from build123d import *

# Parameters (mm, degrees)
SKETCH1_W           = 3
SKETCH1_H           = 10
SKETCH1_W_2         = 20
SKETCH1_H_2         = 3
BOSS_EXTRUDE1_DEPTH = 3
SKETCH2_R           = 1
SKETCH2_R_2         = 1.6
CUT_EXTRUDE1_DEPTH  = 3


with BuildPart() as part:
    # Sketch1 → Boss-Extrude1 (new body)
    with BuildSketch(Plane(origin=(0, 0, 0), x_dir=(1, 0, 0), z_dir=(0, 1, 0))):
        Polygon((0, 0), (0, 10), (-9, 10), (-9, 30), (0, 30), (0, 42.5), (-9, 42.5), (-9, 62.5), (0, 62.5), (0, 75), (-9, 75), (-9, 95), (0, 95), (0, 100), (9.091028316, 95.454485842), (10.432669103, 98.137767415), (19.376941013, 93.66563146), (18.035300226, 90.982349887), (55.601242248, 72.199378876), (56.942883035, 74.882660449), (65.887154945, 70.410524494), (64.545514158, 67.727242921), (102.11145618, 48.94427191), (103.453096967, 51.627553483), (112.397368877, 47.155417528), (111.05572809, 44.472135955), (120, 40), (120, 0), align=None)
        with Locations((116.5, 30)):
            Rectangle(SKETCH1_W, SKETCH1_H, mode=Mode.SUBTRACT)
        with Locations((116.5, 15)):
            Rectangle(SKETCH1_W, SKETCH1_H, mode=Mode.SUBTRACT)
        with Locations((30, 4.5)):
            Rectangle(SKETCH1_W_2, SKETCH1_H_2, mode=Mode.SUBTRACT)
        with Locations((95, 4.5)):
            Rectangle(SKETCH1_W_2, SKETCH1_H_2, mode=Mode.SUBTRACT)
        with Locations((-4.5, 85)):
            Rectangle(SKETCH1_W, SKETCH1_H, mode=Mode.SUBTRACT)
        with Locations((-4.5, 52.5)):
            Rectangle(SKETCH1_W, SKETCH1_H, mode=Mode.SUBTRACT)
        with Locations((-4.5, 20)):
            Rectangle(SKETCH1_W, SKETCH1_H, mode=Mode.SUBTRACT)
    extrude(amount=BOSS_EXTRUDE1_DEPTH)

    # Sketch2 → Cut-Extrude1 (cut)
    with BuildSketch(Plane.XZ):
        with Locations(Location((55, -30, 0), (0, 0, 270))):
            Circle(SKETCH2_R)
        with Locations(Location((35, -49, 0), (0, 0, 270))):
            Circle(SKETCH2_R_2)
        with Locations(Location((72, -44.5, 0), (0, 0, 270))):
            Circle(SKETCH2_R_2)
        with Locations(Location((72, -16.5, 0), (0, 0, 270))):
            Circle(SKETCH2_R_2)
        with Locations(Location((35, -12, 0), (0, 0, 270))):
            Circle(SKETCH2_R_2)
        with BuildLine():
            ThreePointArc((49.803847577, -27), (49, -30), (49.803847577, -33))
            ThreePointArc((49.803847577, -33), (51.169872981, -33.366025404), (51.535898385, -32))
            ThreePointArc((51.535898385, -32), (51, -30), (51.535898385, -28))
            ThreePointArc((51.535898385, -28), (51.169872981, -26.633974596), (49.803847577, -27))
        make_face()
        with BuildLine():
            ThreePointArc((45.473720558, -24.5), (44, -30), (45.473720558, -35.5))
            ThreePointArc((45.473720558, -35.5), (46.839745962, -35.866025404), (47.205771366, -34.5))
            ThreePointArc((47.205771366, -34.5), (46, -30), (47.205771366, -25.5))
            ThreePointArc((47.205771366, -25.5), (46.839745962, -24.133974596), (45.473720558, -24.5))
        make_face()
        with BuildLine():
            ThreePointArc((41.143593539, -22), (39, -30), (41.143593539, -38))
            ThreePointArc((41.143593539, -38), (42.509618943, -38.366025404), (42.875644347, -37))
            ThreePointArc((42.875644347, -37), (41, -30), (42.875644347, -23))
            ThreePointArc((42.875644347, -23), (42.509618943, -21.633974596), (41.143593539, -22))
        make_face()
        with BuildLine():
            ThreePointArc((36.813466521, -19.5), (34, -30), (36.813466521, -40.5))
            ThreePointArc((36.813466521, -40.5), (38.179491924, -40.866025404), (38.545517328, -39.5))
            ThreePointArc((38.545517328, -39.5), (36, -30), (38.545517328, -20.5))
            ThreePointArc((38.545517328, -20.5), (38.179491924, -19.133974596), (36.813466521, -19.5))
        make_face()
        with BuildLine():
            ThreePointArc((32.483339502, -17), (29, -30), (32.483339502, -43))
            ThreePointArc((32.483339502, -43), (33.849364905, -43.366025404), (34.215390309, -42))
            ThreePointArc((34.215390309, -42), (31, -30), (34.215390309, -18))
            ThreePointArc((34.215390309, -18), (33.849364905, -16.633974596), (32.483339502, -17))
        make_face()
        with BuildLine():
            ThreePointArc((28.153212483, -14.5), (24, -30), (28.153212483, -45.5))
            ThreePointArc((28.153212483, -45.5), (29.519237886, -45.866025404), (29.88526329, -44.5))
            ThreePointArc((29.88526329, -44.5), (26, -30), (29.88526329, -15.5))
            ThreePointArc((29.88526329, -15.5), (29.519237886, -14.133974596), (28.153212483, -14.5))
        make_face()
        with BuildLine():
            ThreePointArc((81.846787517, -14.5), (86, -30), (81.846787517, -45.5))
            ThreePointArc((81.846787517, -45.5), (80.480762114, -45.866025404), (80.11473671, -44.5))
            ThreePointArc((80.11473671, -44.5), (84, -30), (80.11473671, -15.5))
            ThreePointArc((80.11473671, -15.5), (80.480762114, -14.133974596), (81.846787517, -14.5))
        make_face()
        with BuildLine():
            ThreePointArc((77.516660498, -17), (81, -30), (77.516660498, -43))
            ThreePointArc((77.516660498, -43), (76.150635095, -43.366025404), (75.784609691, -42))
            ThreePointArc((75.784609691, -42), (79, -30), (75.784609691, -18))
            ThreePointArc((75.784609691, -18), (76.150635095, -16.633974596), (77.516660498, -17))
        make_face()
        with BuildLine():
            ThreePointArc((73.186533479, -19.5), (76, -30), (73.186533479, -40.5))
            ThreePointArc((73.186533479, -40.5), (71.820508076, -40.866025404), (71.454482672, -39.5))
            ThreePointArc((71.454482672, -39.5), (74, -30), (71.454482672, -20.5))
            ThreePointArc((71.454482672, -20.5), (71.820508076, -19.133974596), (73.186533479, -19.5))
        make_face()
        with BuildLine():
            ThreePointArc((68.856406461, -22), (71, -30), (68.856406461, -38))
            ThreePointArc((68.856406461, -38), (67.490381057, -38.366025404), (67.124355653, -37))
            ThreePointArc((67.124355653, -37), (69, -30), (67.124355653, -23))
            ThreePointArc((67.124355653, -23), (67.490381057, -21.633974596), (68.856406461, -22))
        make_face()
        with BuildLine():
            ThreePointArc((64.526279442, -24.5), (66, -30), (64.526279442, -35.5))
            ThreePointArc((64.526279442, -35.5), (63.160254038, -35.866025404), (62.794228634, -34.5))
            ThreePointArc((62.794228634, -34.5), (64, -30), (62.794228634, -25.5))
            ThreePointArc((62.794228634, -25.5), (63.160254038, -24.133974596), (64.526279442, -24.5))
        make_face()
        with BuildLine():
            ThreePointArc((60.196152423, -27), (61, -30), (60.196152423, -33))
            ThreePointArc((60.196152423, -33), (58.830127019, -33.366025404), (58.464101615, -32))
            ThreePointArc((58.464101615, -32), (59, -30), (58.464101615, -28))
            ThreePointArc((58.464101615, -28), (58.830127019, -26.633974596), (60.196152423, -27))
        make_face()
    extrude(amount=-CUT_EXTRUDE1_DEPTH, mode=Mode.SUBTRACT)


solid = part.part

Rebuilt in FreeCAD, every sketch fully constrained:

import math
import FreeCAD as App
import Part
import Sketcher

V = App.Vector
Q = App.Units.Quantity


def add_polygon(sketch, points):
    """Adds a closed chain of lines whose ends are joined by coincident constraints."""
    first, n = sketch.GeometryCount, len(points)
    for a, b in zip(points, points[1:] + points[:1]):
        sketch.addGeometry(Part.LineSegment(App.Vector(*a, 0), App.Vector(*b, 0)), False)
    for i in range(n):
        sketch.addConstraint(Sketcher.Constraint("Coincident", first + i, 2, first + (i + 1) % n, 1))

doc = App.newDocument("Part")
body = doc.addObject("PartDesign::Body", "Body")

sketch1 = doc.addObject("Sketcher::SketchObject", "Sketch")
body.addObject(sketch1)
sketch1.AttachmentSupport = (doc.XZ_Plane, [""])
sketch1.MapMode = "FlatFace"
add_polygon(sketch1, [(0, -10), (0, 0), (120, 0), (120, -40), (111.1, -44.5), (112.4, -47.2), (103.5, -51.6), (102.1, -48.9), (64.5, -67.7), (65.9, -70.4), (56.9, -74.9), (55.6, -72.2), (18, -91), (19.4, -93.7), (10.4, -98.1), (9.1, -95.5), (0, -100), (0, -95), (-9, -95), (-9, -75), (0, -75), (0, -62.5), (-9, -62.5), (-9, -42.5), (0, -42.5), (0, -30), (-9, -30), (-9, -10)])
add_polygon(sketch1, [(85, -3), (85, -6), (105, -6), (105, -3)])
add_polygon(sketch1, [(115, -10), (115, -20), (118, -20), (118, -10)])
add_polygon(sketch1, [(115, -25), (115, -35), (118, -35), (118, -25)])
add_polygon(sketch1, [(20, -3), (20, -6), (40, -6), (40, -3)])
add_polygon(sketch1, [(-6, -15), (-6, -25), (-3, -25), (-3, -15)])
add_polygon(sketch1, [(-6, -47.5), (-6, -57.5), (-3, -57.5), (-3, -47.5)])
add_polygon(sketch1, [(-6, -80), (-6, -90), (-3, -90), (-3, -80)])
sketch1.addConstraint(Sketcher.Constraint("Vertical", 0))
sketch1.addConstraint(Sketcher.Constraint("Horizontal", 1))
sketch1.addConstraint(Sketcher.Constraint("Vertical", 2))
sketch1.addConstraint(Sketcher.Constraint("Vertical", 16))
sketch1.addConstraint(Sketcher.Constraint("Horizontal", 17))
sketch1.addConstraint(Sketcher.Constraint("Vertical", 18))
sketch1.addConstraint(Sketcher.Constraint("Horizontal", 19))
sketch1.addConstraint(Sketcher.Constraint("Vertical", 20))
sketch1.addConstraint(Sketcher.Constraint("Horizontal", 21))
sketch1.addConstraint(Sketcher.Constraint("Vertical", 22))
sketch1.addConstraint(Sketcher.Constraint("Horizontal", 23))
sketch1.addConstraint(Sketcher.Constraint("Vertical", 24))
sketch1.addConstraint(Sketcher.Constraint("Horizontal", 25))
sketch1.addConstraint(Sketcher.Constraint("Vertical", 26))
sketch1.addConstraint(Sketcher.Constraint("Horizontal", 27))
sketch1.addConstraint(Sketcher.Constraint("Vertical", 28))
sketch1.addConstraint(Sketcher.Constraint("Horizontal", 29))
sketch1.addConstraint(Sketcher.Constraint("Vertical", 30))
sketch1.addConstraint(Sketcher.Constraint("Horizontal", 31))
sketch1.addConstraint(Sketcher.Constraint("Vertical", 32))
sketch1.addConstraint(Sketcher.Constraint("Horizontal", 33))
sketch1.addConstraint(Sketcher.Constraint("Vertical", 34))
sketch1.addConstraint(Sketcher.Constraint("Horizontal", 35))
sketch1.addConstraint(Sketcher.Constraint("Vertical", 36))
sketch1.addConstraint(Sketcher.Constraint("Horizontal", 37))
sketch1.addConstraint(Sketcher.Constraint("Vertical", 38))
sketch1.addConstraint(Sketcher.Constraint("Horizontal", 39))
sketch1.addConstraint(Sketcher.Constraint("Vertical", 40))
sketch1.addConstraint(Sketcher.Constraint("Horizontal", 41))
sketch1.addConstraint(Sketcher.Constraint("Vertical", 42))
sketch1.addConstraint(Sketcher.Constraint("Horizontal", 43))
sketch1.addConstraint(Sketcher.Constraint("Vertical", 44))
sketch1.addConstraint(Sketcher.Constraint("Horizontal", 45))
sketch1.addConstraint(Sketcher.Constraint("Vertical", 46))
sketch1.addConstraint(Sketcher.Constraint("Horizontal", 47))
sketch1.addConstraint(Sketcher.Constraint("Vertical", 48))
sketch1.addConstraint(Sketcher.Constraint("Horizontal", 49))
sketch1.addConstraint(Sketcher.Constraint("Vertical", 50))
sketch1.addConstraint(Sketcher.Constraint("Horizontal", 51))
sketch1.addConstraint(Sketcher.Constraint("Vertical", 52))
sketch1.addConstraint(Sketcher.Constraint("Horizontal", 53))
sketch1.addConstraint(Sketcher.Constraint("Vertical", 54))
sketch1.addConstraint(Sketcher.Constraint("Horizontal", 55))
sketch1.addConstraint(Sketcher.Constraint("Coincident", 0, 2, -1, 1))
sketch1.addConstraint(Sketcher.Constraint("PointOnObject", 15, 2, -2))
sketch1.addConstraint(Sketcher.Constraint("PointOnObject", 19, 2, -2))
sketch1.addConstraint(Sketcher.Constraint("PointOnObject", 23, 2, -2))
sketch1.addConstraint(Sketcher.Constraint("Perpendicular", 3, 4))
sketch1.addConstraint(Sketcher.Constraint("Perpendicular", 4, 5))
sketch1.addConstraint(Sketcher.Constraint("Perpendicular", 5, 6))
sketch1.addConstraint(Sketcher.Constraint("Perpendicular", 6, 7))
sketch1.addConstraint(Sketcher.Constraint("Perpendicular", 7, 8))
sketch1.addConstraint(Sketcher.Constraint("Perpendicular", 8, 9))
sketch1.addConstraint(Sketcher.Constraint("Perpendicular", 9, 10))
sketch1.addConstraint(Sketcher.Constraint("Perpendicular", 10, 11))
sketch1.addConstraint(Sketcher.Constraint("Perpendicular", 11, 12))
sketch1.addConstraint(Sketcher.Constraint("Perpendicular", 12, 13))
sketch1.addConstraint(Sketcher.Constraint("Perpendicular", 13, 14))
sketch1.addConstraint(Sketcher.Constraint("Perpendicular", 14, 15))
sketch1.addConstraint(Sketcher.Constraint("Horizontal", 27, 2, 34, 2))
sketch1.addConstraint(Sketcher.Constraint("Horizontal", 29, 2, 40, 2))
sketch1.addConstraint(Sketcher.Constraint("Horizontal", 31, 2, 42, 2))
sketch1.addConstraint(Sketcher.Constraint("Horizontal", 39, 2, 44, 2))
sketch1.addConstraint(Sketcher.Constraint("Vertical", 18, 2, 21, 2))
sketch1.addConstraint(Sketcher.Constraint("Vertical", 22, 2, 25, 2))
sketch1.addConstraint(Sketcher.Constraint("Vertical", 35, 2, 36, 2))
sketch1.addConstraint(Sketcher.Constraint("Vertical", 34, 2, 37, 2))
sketch1.addConstraint(Sketcher.Constraint("Vertical", 47, 2, 48, 2))
sketch1.addConstraint(Sketcher.Constraint("Vertical", 46, 2, 49, 2))
sketch1.addConstraint(Sketcher.Constraint("Vertical", 51, 2, 52, 2))
sketch1.addConstraint(Sketcher.Constraint("Vertical", 50, 2, 53, 2))
sketch1.addConstraint(Sketcher.Constraint("Equal", 31, 41))
sketch1.addConstraint(Sketcher.Constraint("Equal", 39, 45))
sketch1.addConstraint(Sketcher.Constraint("Equal", 43, 18))
sketch1.addConstraint(Sketcher.Constraint("Equal", 18, 22))
sketch1.addConstraint(Sketcher.Constraint("Equal", 20, 24))
sketch1.addConstraint(Sketcher.Constraint("Equal", 22, 26))
sketch1.addConstraint(Sketcher.Constraint("Equal", 55, 28))
sketch1.addConstraint(Sketcher.Constraint("Equal", 0, 32))
sketch1.addConstraint(Sketcher.Constraint("Equal", 34, 36))
sketch1.addConstraint(Sketcher.Constraint("Equal", 38, 44))
sketch1.addConstraint(Sketcher.Constraint("Equal", 46, 48))
sketch1.addConstraint(Sketcher.Constraint("Equal", 50, 52))
sketch1.addConstraint(Sketcher.Constraint("Equal", 3, 5))
sketch1.addConstraint(Sketcher.Constraint("Equal", 4, 6))
sketch1.addConstraint(Sketcher.Constraint("Equal", 6, 8))
sketch1.addConstraint(Sketcher.Constraint("Equal", 5, 9))
sketch1.addConstraint(Sketcher.Constraint("Equal", 8, 10))
sketch1.addConstraint(Sketcher.Constraint("Equal", 7, 11))
sketch1.addConstraint(Sketcher.Constraint("Equal", 10, 12))
sketch1.addConstraint(Sketcher.Constraint("Equal", 9, 13))
sketch1.addConstraint(Sketcher.Constraint("Equal", 12, 14))
sketch1.addConstraint(Sketcher.Constraint("DistanceX", 1, 1, 1, 2, Q("120 mm")))
sketch1.addConstraint(Sketcher.Constraint("DistanceX", 17, 2, 17, 1, Q("9 mm")))
sketch1.addConstraint(Sketcher.Constraint("DistanceX", 29, 1, 29, 2, Q("20 mm")))
sketch1.addConstraint(Sketcher.Constraint("DistanceX", 33, 1, 33, 2, Q("3 mm")))
sketch1.addConstraint(Sketcher.Constraint("DistanceY", 0, 1, 0, 2, Q("10 mm")))
sketch1.addConstraint(Sketcher.Constraint("DistanceY", 2, 2, 2, 1, Q("40 mm")))
sketch1.addConstraint(Sketcher.Constraint("DistanceY", 16, 1, 16, 2, Q("5 mm")))
sketch1.addConstraint(Sketcher.Constraint("Distance", 3, Q("10 mm")))
sketch1.addConstraint(Sketcher.Constraint("Distance", 4, Q("3 mm")))
sketch1.addConstraint(Sketcher.Constraint("Distance", 7, Q("42 mm")))
sketch1.addConstraint(Sketcher.Constraint("DistanceY", 20, 1, 20, 2, Q("12.5 mm")))
sketch1.addConstraint(Sketcher.Constraint("DistanceX", -1, 1, 28, 2, Q("85 mm")))
sketch1.addConstraint(Sketcher.Constraint("DistanceY", 28, 2, -1, 1, Q("6 mm")))
sketch1.addConstraint(Sketcher.Constraint("DistanceX", -1, 1, 32, 2, Q("115 mm")))
sketch1.addConstraint(Sketcher.Constraint("DistanceY", 36, 2, -1, 1, Q("35 mm")))
sketch1.addConstraint(Sketcher.Constraint("DistanceX", -1, 1, 40, 2, Q("20 mm")))
sketch1.addConstraint(Sketcher.Constraint("DistanceX", 44, 2, -1, 1, Q("6 mm")))
sketch1.addConstraint(Sketcher.Constraint("DistanceY", 52, 2, -1, 1, Q("90 mm")))
sketch1.addConstraint(Sketcher.Constraint("DistanceY", 21, 2, 48, 2, Q("5 mm")))
pad1 = doc.addObject("PartDesign::Pad", "Pad")
body.addObject(pad1)
pad1.Profile = sketch1
pad1.Length = 3
pad1.Reversed = True

sketch2 = doc.addObject("Sketcher::SketchObject", "Sketch001")
body.addObject(sketch2)
sketch2.AttachmentSupport = (doc.XZ_Plane, [""])
sketch2.MapMode = "FlatFace"
sketch2.addGeometry(Part.Circle(V(55, -30, 0), V(0, 0, 1), 1), False)
sketch2.addGeometry(Part.Circle(V(35, -49, 0), V(0, 0, 1), 1.6), False)
sketch2.addGeometry(Part.Circle(V(72, -44.5, 0), V(0, 0, 1), 1.6), False)
sketch2.addGeometry(Part.Circle(V(72, -16.5, 0), V(0, 0, 1), 1.6), False)
sketch2.addGeometry(Part.Circle(V(35, -12, 0), V(0, 0, 1), 1.6), False)
sketch2.addGeometry(Part.ArcOfCircle(Part.Circle(V(55, -30, 0), V(0, 0, 1), 6), math.radians(150), math.radians(210)), False)
sketch2.addGeometry(Part.ArcOfCircle(Part.Circle(V(50.7, -32.5, 0), V(0, 0, 1), 1), math.radians(-150), math.radians(30)), False)
sketch2.addGeometry(Part.ArcOfCircle(Part.Circle(V(55, -30, 0), V(0, 0, 1), 4), math.radians(150), math.radians(210)), False)
sketch2.addGeometry(Part.ArcOfCircle(Part.Circle(V(50.7, -27.5, 0), V(0, 0, 1), 1), math.radians(-30), math.radians(150)), False)
sketch2.addGeometry(Part.ArcOfCircle(Part.Circle(V(55, -30, 0), V(0, 0, 1), 11), math.radians(150), math.radians(210)), False)
sketch2.addGeometry(Part.ArcOfCircle(Part.Circle(V(46.3, -35, 0), V(0, 0, 1), 1), math.radians(-150), math.radians(30)), False)
sketch2.addGeometry(Part.ArcOfCircle(Part.Circle(V(55, -30, 0), V(0, 0, 1), 9), math.radians(150), math.radians(210)), False)
sketch2.addGeometry(Part.ArcOfCircle(Part.Circle(V(46.3, -25, 0), V(0, 0, 1), 1), math.radians(-30), math.radians(150)), False)
sketch2.addGeometry(Part.ArcOfCircle(Part.Circle(V(55, -30, 0), V(0, 0, 1), 16), math.radians(150), math.radians(210)), False)
sketch2.addGeometry(Part.ArcOfCircle(Part.Circle(V(42, -37.5, 0), V(0, 0, 1), 1), math.radians(-150), math.radians(30)), False)
sketch2.addGeometry(Part.ArcOfCircle(Part.Circle(V(55, -30, 0), V(0, 0, 1), 14), math.radians(150), math.radians(210)), False)
sketch2.addGeometry(Part.ArcOfCircle(Part.Circle(V(42, -22.5, 0), V(0, 0, 1), 1), math.radians(-30), math.radians(150)), False)
sketch2.addGeometry(Part.ArcOfCircle(Part.Circle(V(55, -30, 0), V(0, 0, 1), 21), math.radians(150), math.radians(210)), False)
sketch2.addGeometry(Part.ArcOfCircle(Part.Circle(V(37.7, -40, 0), V(0, 0, 1), 1), math.radians(-150), math.radians(30)), False)
sketch2.addGeometry(Part.ArcOfCircle(Part.Circle(V(55, -30, 0), V(0, 0, 1), 19), math.radians(150), math.radians(210)), False)
sketch2.addGeometry(Part.ArcOfCircle(Part.Circle(V(37.7, -20, 0), V(0, 0, 1), 1), math.radians(-30), math.radians(150)), False)
sketch2.addGeometry(Part.ArcOfCircle(Part.Circle(V(55, -30, 0), V(0, 0, 1), 26), math.radians(150), math.radians(210)), False)
sketch2.addGeometry(Part.ArcOfCircle(Part.Circle(V(33.3, -42.5, 0), V(0, 0, 1), 1), math.radians(-150), math.radians(30)), False)
sketch2.addGeometry(Part.ArcOfCircle(Part.Circle(V(55, -30, 0), V(0, 0, 1), 24), math.radians(150), math.radians(210)), False)
sketch2.addGeometry(Part.ArcOfCircle(Part.Circle(V(33.3, -17.5, 0), V(0, 0, 1), 1), math.radians(-30), math.radians(150)), False)
sketch2.addGeometry(Part.ArcOfCircle(Part.Circle(V(55, -30, 0), V(0, 0, 1), 31), math.radians(150), math.radians(210)), False)
sketch2.addGeometry(Part.ArcOfCircle(Part.Circle(V(29, -45, 0), V(0, 0, 1), 1), math.radians(-150), math.radians(30)), False)
sketch2.addGeometry(Part.ArcOfCircle(Part.Circle(V(55, -30, 0), V(0, 0, 1), 29), math.radians(150), math.radians(210)), False)
sketch2.addGeometry(Part.ArcOfCircle(Part.Circle(V(29, -15, 0), V(0, 0, 1), 1), math.radians(-30), math.radians(150)), False)
sketch2.addGeometry(Part.ArcOfCircle(Part.Circle(V(55, -30, 0), V(0, 0, 1), 31), math.radians(-30), math.radians(30)), False)
sketch2.addGeometry(Part.ArcOfCircle(Part.Circle(V(81, -15, 0), V(0, 0, 1), 1), math.radians(30), math.radians(210)), False)
sketch2.addGeometry(Part.ArcOfCircle(Part.Circle(V(55, -30, 0), V(0, 0, 1), 29), math.radians(-30), math.radians(30)), False)
sketch2.addGeometry(Part.ArcOfCircle(Part.Circle(V(81, -45, 0), V(0, 0, 1), 1), math.radians(150), math.radians(330)), False)
sketch2.addGeometry(Part.ArcOfCircle(Part.Circle(V(55, -30, 0), V(0, 0, 1), 26), math.radians(-30), math.radians(30)), False)
sketch2.addGeometry(Part.ArcOfCircle(Part.Circle(V(76.7, -17.5, 0), V(0, 0, 1), 1), math.radians(30), math.radians(210)), False)
sketch2.addGeometry(Part.ArcOfCircle(Part.Circle(V(55, -30, 0), V(0, 0, 1), 24), math.radians(-30), math.radians(30)), False)
sketch2.addGeometry(Part.ArcOfCircle(Part.Circle(V(76.7, -42.5, 0), V(0, 0, 1), 1), math.radians(150), math.radians(330)), False)
sketch2.addGeometry(Part.ArcOfCircle(Part.Circle(V(55, -30, 0), V(0, 0, 1), 21), math.radians(-30), math.radians(30)), False)
sketch2.addGeometry(Part.ArcOfCircle(Part.Circle(V(72.3, -20, 0), V(0, 0, 1), 1), math.radians(30), math.radians(210)), False)
sketch2.addGeometry(Part.ArcOfCircle(Part.Circle(V(55, -30, 0), V(0, 0, 1), 19), math.radians(-30), math.radians(30)), False)
sketch2.addGeometry(Part.ArcOfCircle(Part.Circle(V(72.3, -40, 0), V(0, 0, 1), 1), math.radians(150), math.radians(330)), False)
sketch2.addGeometry(Part.ArcOfCircle(Part.Circle(V(55, -30, 0), V(0, 0, 1), 16), math.radians(-30), math.radians(30)), False)
sketch2.addGeometry(Part.ArcOfCircle(Part.Circle(V(68, -22.5, 0), V(0, 0, 1), 1), math.radians(30), math.radians(210)), False)
sketch2.addGeometry(Part.ArcOfCircle(Part.Circle(V(55, -30, 0), V(0, 0, 1), 14), math.radians(-30), math.radians(30)), False)
sketch2.addGeometry(Part.ArcOfCircle(Part.Circle(V(68, -37.5, 0), V(0, 0, 1), 1), math.radians(150), math.radians(330)), False)
sketch2.addGeometry(Part.ArcOfCircle(Part.Circle(V(55, -30, 0), V(0, 0, 1), 11), math.radians(-30), math.radians(30)), False)
sketch2.addGeometry(Part.ArcOfCircle(Part.Circle(V(63.7, -25, 0), V(0, 0, 1), 1), math.radians(30), math.radians(210)), False)
sketch2.addGeometry(Part.ArcOfCircle(Part.Circle(V(55, -30, 0), V(0, 0, 1), 9), math.radians(-30), math.radians(30)), False)
sketch2.addGeometry(Part.ArcOfCircle(Part.Circle(V(63.7, -35, 0), V(0, 0, 1), 1), math.radians(150), math.radians(330)), False)
sketch2.addGeometry(Part.ArcOfCircle(Part.Circle(V(55, -30, 0), V(0, 0, 1), 6), math.radians(-30), math.radians(30)), False)
sketch2.addGeometry(Part.ArcOfCircle(Part.Circle(V(59.3, -27.5, 0), V(0, 0, 1), 1), math.radians(30), math.radians(210)), False)
sketch2.addGeometry(Part.ArcOfCircle(Part.Circle(V(55, -30, 0), V(0, 0, 1), 4), math.radians(-30), math.radians(30)), False)
sketch2.addGeometry(Part.ArcOfCircle(Part.Circle(V(59.3, -32.5, 0), V(0, 0, 1), 1), math.radians(150), math.radians(330)), False)
sketch2.addConstraint(Sketcher.Constraint("Tangent", 5, 2, 6, 1))
sketch2.addConstraint(Sketcher.Constraint("Tangent", 6, 2, 7, 2))
sketch2.addConstraint(Sketcher.Constraint("Tangent", 7, 1, 8, 1))
sketch2.addConstraint(Sketcher.Constraint("Tangent", 8, 2, 5, 1))
sketch2.addConstraint(Sketcher.Constraint("Tangent", 9, 2, 10, 1))
sketch2.addConstraint(Sketcher.Constraint("Tangent", 10, 2, 11, 2))
sketch2.addConstraint(Sketcher.Constraint("Tangent", 11, 1, 12, 1))
sketch2.addConstraint(Sketcher.Constraint("Tangent", 12, 2, 9, 1))
sketch2.addConstraint(Sketcher.Constraint("Tangent", 13, 2, 14, 1))
sketch2.addConstraint(Sketcher.Constraint("Tangent", 14, 2, 15, 2))
sketch2.addConstraint(Sketcher.Constraint("Tangent", 15, 1, 16, 1))
sketch2.addConstraint(Sketcher.Constraint("Tangent", 16, 2, 13, 1))
sketch2.addConstraint(Sketcher.Constraint("Tangent", 17, 2, 18, 1))
sketch2.addConstraint(Sketcher.Constraint("Tangent", 18, 2, 19, 2))
sketch2.addConstraint(Sketcher.Constraint("Tangent", 19, 1, 20, 1))
sketch2.addConstraint(Sketcher.Constraint("Tangent", 20, 2, 17, 1))
sketch2.addConstraint(Sketcher.Constraint("Tangent", 21, 2, 22, 1))
sketch2.addConstraint(Sketcher.Constraint("Tangent", 22, 2, 23, 2))
sketch2.addConstraint(Sketcher.Constraint("Tangent", 23, 1, 24, 1))
sketch2.addConstraint(Sketcher.Constraint("Tangent", 24, 2, 21, 1))
sketch2.addConstraint(Sketcher.Constraint("Tangent", 25, 2, 26, 1))
sketch2.addConstraint(Sketcher.Constraint("Tangent", 26, 2, 27, 2))
sketch2.addConstraint(Sketcher.Constraint("Tangent", 27, 1, 28, 1))
sketch2.addConstraint(Sketcher.Constraint("Tangent", 28, 2, 25, 1))
sketch2.addConstraint(Sketcher.Constraint("Tangent", 29, 2, 30, 1))
sketch2.addConstraint(Sketcher.Constraint("Tangent", 30, 2, 31, 2))
sketch2.addConstraint(Sketcher.Constraint("Tangent", 31, 1, 32, 1))
sketch2.addConstraint(Sketcher.Constraint("Tangent", 32, 2, 29, 1))
sketch2.addConstraint(Sketcher.Constraint("Tangent", 33, 2, 34, 1))
sketch2.addConstraint(Sketcher.Constraint("Tangent", 34, 2, 35, 2))
sketch2.addConstraint(Sketcher.Constraint("Tangent", 35, 1, 36, 1))
sketch2.addConstraint(Sketcher.Constraint("Tangent", 36, 2, 33, 1))
sketch2.addConstraint(Sketcher.Constraint("Tangent", 37, 2, 38, 1))
sketch2.addConstraint(Sketcher.Constraint("Tangent", 38, 2, 39, 2))
sketch2.addConstraint(Sketcher.Constraint("Tangent", 39, 1, 40, 1))
sketch2.addConstraint(Sketcher.Constraint("Tangent", 40, 2, 37, 1))
sketch2.addConstraint(Sketcher.Constraint("Tangent", 41, 2, 42, 1))
sketch2.addConstraint(Sketcher.Constraint("Tangent", 42, 2, 43, 2))
sketch2.addConstraint(Sketcher.Constraint("Tangent", 43, 1, 44, 1))
sketch2.addConstraint(Sketcher.Constraint("Tangent", 44, 2, 41, 1))
sketch2.addConstraint(Sketcher.Constraint("Tangent", 45, 2, 46, 1))
sketch2.addConstraint(Sketcher.Constraint("Tangent", 46, 2, 47, 2))
sketch2.addConstraint(Sketcher.Constraint("Tangent", 47, 1, 48, 1))
sketch2.addConstraint(Sketcher.Constraint("Tangent", 48, 2, 45, 1))
sketch2.addConstraint(Sketcher.Constraint("Tangent", 49, 2, 50, 1))
sketch2.addConstraint(Sketcher.Constraint("Tangent", 50, 2, 51, 2))
sketch2.addConstraint(Sketcher.Constraint("Tangent", 51, 1, 52, 1))
sketch2.addConstraint(Sketcher.Constraint("Tangent", 52, 2, 49, 1))
sketch2.addConstraint(Sketcher.Constraint("Coincident", 5, 3, 0, 3))
sketch2.addConstraint(Sketcher.Constraint("Coincident", 7, 3, 0, 3))
sketch2.addConstraint(Sketcher.Constraint("Coincident", 9, 3, 0, 3))
sketch2.addConstraint(Sketcher.Constraint("Coincident", 11, 3, 0, 3))
sketch2.addConstraint(Sketcher.Constraint("Coincident", 13, 3, 0, 3))
sketch2.addConstraint(Sketcher.Constraint("Coincident", 15, 3, 0, 3))
sketch2.addConstraint(Sketcher.Constraint("Coincident", 17, 3, 0, 3))
sketch2.addConstraint(Sketcher.Constraint("Coincident", 19, 3, 0, 3))
sketch2.addConstraint(Sketcher.Constraint("Coincident", 21, 3, 0, 3))
sketch2.addConstraint(Sketcher.Constraint("Coincident", 23, 3, 0, 3))
sketch2.addConstraint(Sketcher.Constraint("Coincident", 25, 3, 0, 3))
sketch2.addConstraint(Sketcher.Constraint("Coincident", 27, 3, 0, 3))
sketch2.addConstraint(Sketcher.Constraint("Coincident", 29, 3, 0, 3))
sketch2.addConstraint(Sketcher.Constraint("Coincident", 31, 3, 0, 3))
sketch2.addConstraint(Sketcher.Constraint("Coincident", 33, 3, 0, 3))
sketch2.addConstraint(Sketcher.Constraint("Coincident", 35, 3, 0, 3))
sketch2.addConstraint(Sketcher.Constraint("Coincident", 37, 3, 0, 3))
sketch2.addConstraint(Sketcher.Constraint("Coincident", 39, 3, 0, 3))
sketch2.addConstraint(Sketcher.Constraint("Coincident", 41, 3, 0, 3))
sketch2.addConstraint(Sketcher.Constraint("Coincident", 43, 3, 0, 3))
sketch2.addConstraint(Sketcher.Constraint("Coincident", 45, 3, 0, 3))
sketch2.addConstraint(Sketcher.Constraint("Coincident", 47, 3, 0, 3))
sketch2.addConstraint(Sketcher.Constraint("Coincident", 49, 3, 0, 3))
sketch2.addConstraint(Sketcher.Constraint("Coincident", 51, 3, 0, 3))
sketch2.addConstraint(Sketcher.Constraint("Equal", 1, 2))
sketch2.addConstraint(Sketcher.Constraint("Equal", 2, 3))
sketch2.addConstraint(Sketcher.Constraint("Equal", 3, 4))
sketch2.addConstraint(Sketcher.Constraint("Equal", 0, 6))
sketch2.addConstraint(Sketcher.Constraint("Equal", 8, 10))
sketch2.addConstraint(Sketcher.Constraint("Equal", 12, 14))
sketch2.addConstraint(Sketcher.Constraint("Equal", 16, 18))
sketch2.addConstraint(Sketcher.Constraint("Equal", 20, 22))
sketch2.addConstraint(Sketcher.Constraint("Equal", 24, 26))
sketch2.addConstraint(Sketcher.Constraint("Equal", 25, 29))
sketch2.addConstraint(Sketcher.Constraint("Equal", 28, 30))
sketch2.addConstraint(Sketcher.Constraint("Equal", 21, 33))
sketch2.addConstraint(Sketcher.Constraint("Equal", 32, 34))
sketch2.addConstraint(Sketcher.Constraint("Equal", 17, 37))
sketch2.addConstraint(Sketcher.Constraint("Equal", 36, 38))
sketch2.addConstraint(Sketcher.Constraint("Equal", 13, 41))
sketch2.addConstraint(Sketcher.Constraint("Equal", 40, 42))
sketch2.addConstraint(Sketcher.Constraint("Equal", 9, 45))
sketch2.addConstraint(Sketcher.Constraint("Equal", 44, 46))
sketch2.addConstraint(Sketcher.Constraint("Equal", 5, 49))
sketch2.addConstraint(Sketcher.Constraint("Equal", 48, 50))
sketch2.addConstraint(Sketcher.Constraint("Horizontal", 28, 3, 30, 3))
sketch2.addConstraint(Sketcher.Constraint("Horizontal", 26, 3, 32, 3))
sketch2.addConstraint(Sketcher.Constraint("Horizontal", 24, 3, 34, 3))
sketch2.addConstraint(Sketcher.Constraint("Horizontal", 22, 3, 36, 3))
sketch2.addConstraint(Sketcher.Constraint("Horizontal", 20, 3, 38, 3))
sketch2.addConstraint(Sketcher.Constraint("Horizontal", 18, 3, 40, 3))
sketch2.addConstraint(Sketcher.Constraint("Horizontal", 16, 3, 42, 3))
sketch2.addConstraint(Sketcher.Constraint("Horizontal", 14, 3, 44, 3))
sketch2.addConstraint(Sketcher.Constraint("Horizontal", 12, 3, 46, 3))
sketch2.addConstraint(Sketcher.Constraint("Horizontal", 10, 3, 48, 3))
sketch2.addConstraint(Sketcher.Constraint("Horizontal", 8, 3, 50, 3))
sketch2.addConstraint(Sketcher.Constraint("Horizontal", 6, 3, 52, 3))
sketch2.addConstraint(Sketcher.Constraint("Horizontal", 2, 3, 26, 2))
sketch2.addConstraint(Sketcher.Constraint("Vertical", 2, 3, 3, 3))
sketch2.addConstraint(Sketcher.Constraint("Vertical", 1, 3, 4, 3))
sketch2.addConstraint(Sketcher.Constraint("Vertical", 6, 3, 8, 3))
sketch2.addConstraint(Sketcher.Constraint("Vertical", 10, 3, 12, 3))
sketch2.addConstraint(Sketcher.Constraint("Vertical", 14, 3, 16, 3))
sketch2.addConstraint(Sketcher.Constraint("Vertical", 18, 3, 20, 3))
sketch2.addConstraint(Sketcher.Constraint("Vertical", 22, 3, 24, 3))
sketch2.addConstraint(Sketcher.Constraint("Vertical", 26, 3, 28, 3))
sketch2.addConstraint(Sketcher.Constraint("Diameter", 0, Q("2 mm")))
sketch2.addConstraint(Sketcher.Constraint("Radius", 5, Q("6 mm")))
sketch2.addConstraint(Sketcher.Constraint("Radius", 9, Q("11 mm")))
sketch2.addConstraint(Sketcher.Constraint("Radius", 13, Q("16 mm")))
sketch2.addConstraint(Sketcher.Constraint("Radius", 17, Q("21 mm")))
sketch2.addConstraint(Sketcher.Constraint("Radius", 21, Q("26 mm")))
sketch2.addConstraint(Sketcher.Constraint("Radius", 25, Q("31 mm")))
sketch2.addConstraint(Sketcher.Constraint("Diameter", 1, Q("3.2 mm")))
sketch2.addConstraint(Sketcher.Constraint("DistanceX", -1, 1, 0, 3, Q("55 mm")))
sketch2.addConstraint(Sketcher.Constraint("DistanceY", 0, 3, -1, 1, Q("30 mm")))
sketch2.addConstraint(Sketcher.Constraint("DistanceX", -1, 1, 1, 3, Q("35 mm")))
sketch2.addConstraint(Sketcher.Constraint("DistanceY", 1, 3, -1, 1, Q("49 mm")))
sketch2.addConstraint(Sketcher.Constraint("DistanceX", -1, 1, 2, 3, Q("72 mm")))
sketch2.addConstraint(Sketcher.Constraint("DistanceY", 4, 3, -1, 1, Q("12 mm")))
sketch2.addConstraint(Sketcher.Constraint("DistanceY", 10, 3, -1, 1, Q("35 mm")))
sketch2.addConstraint(Sketcher.Constraint("DistanceY", 18, 3, -1, 1, Q("40 mm")))
sketch2.addConstraint(Sketcher.Constraint("DistanceY", 26, 3, -1, 1, Q("45 mm")))
sketch2.addConstraint(Sketcher.Constraint("DistanceY", 5, 2, -1, 1, Q("33 mm")))
sketch2.addConstraint(Sketcher.Constraint("DistanceY", 13, 2, -1, 1, Q("38 mm")))
sketch2.addConstraint(Sketcher.Constraint("DistanceY", 21, 2, -1, 1, Q("43 mm")))
sketch2.addConstraint(Sketcher.Constraint("DistanceY", 3, 3, -1, 1, Q("16.5 mm")))
pocket1 = doc.addObject("PartDesign::Pocket", "Pocket")
body.addObject(pocket1)
pocket1.Profile = sketch2
pocket1.Length = 3

doc.recompute()
